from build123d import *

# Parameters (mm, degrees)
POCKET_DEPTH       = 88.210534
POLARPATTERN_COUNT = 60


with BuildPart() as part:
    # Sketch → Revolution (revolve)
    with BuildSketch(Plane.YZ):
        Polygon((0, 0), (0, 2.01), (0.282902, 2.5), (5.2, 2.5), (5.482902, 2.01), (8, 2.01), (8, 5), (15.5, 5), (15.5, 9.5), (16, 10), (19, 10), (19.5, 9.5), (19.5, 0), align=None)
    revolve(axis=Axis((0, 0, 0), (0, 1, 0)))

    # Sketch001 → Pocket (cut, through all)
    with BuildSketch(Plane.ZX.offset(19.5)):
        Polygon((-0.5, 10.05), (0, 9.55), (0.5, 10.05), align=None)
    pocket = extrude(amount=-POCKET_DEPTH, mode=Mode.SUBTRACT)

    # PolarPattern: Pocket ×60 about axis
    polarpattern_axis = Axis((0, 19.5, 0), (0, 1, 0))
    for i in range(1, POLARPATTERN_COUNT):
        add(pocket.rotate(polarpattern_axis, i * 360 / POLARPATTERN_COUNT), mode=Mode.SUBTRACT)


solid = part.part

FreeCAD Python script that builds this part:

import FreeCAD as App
import Part
import Sketcher

V = App.Vector

doc = App.newDocument("Part")
params = doc.addObject("Spreadsheet::Sheet", "Params")
for row, (alias, value) in enumerate([
    ("sketch1_width", "3 mm"),
    ("sketch1_width2", "19.5 mm"),
    ("sketch1_width3", "7.5 mm"),
    ("sketch1_height", "9.5 mm"),
    ("sketch1_height2", "4.5 mm"),
    ("revolution_angle", "360 deg"),
    ("sketch2_height", "1 mm"),
], start=1):
    params.set(f"A{row}", alias)
    params.set(f"B{row}", "=" + value)
    params.setAlias(f"B{row}", alias)

body = doc.addObject("PartDesign::Body", "Body")

sketch1 = body.newObject("Sketcher::SketchObject", "Sketch")
sketch1.AttachmentSupport = (doc.getObject("YZ_Plane"), [""])
sketch1.MapMode = "FlatFace"
sketch1.addGeometry([
    Part.LineSegment(V(0, 2.01, 0), V(0, 0, 0)),
    Part.LineSegment(V(0, 0, 0), V(19.5, 0, 0)),
    Part.LineSegment(V(19.5, 0, 0), V(19.5, 9.5, 0)),
    Part.LineSegment(V(19.5, 9.5, 0), V(19, 10, 0)),
    Part.LineSegment(V(19, 10, 0), V(16, 10, 0)),
    Part.LineSegment(V(16, 10, 0), V(15.5, 9.5, 0)),
    Part.LineSegment(V(15.5, 9.5, 0), V(15.5, 5, 0)),
    Part.LineSegment(V(15.5, 5, 0), V(8, 5, 0)),
    Part.LineSegment(V(8, 5, 0), V(8, 2.01, 0)),
    Part.LineSegment(V(8, 2.01, 0), V(5.482902, 2.01, 0)),
    Part.LineSegment(V(5.482902, 2.01, 0), V(5.2, 2.5, 0)),
    Part.LineSegment(V(5.2, 2.5, 0), V(0.282902, 2.5, 0)),
    Part.LineSegment(V(0.282902, 2.5, 0), V(0, 2.01, 0)),
], False)
sketch1.addConstraint([
    Sketcher.Constraint("Coincident", 0, 2, 1, 1),
    Sketcher.Constraint("Coincident", 1, 2, 2, 1),
    Sketcher.Constraint("Coincident", 2, 2, 3, 1),
    Sketcher.Constraint("Coincident", 3, 2, 4, 1),
    Sketcher.Constraint("Coincident", 4, 2, 5, 1),
    Sketcher.Constraint("Coincident", 5, 2, 6, 1),
    Sketcher.Constraint("Coincident", 6, 2, 7, 1),
    Sketcher.Constraint("Coincident", 7, 2, 8, 1),
    Sketcher.Constraint("Coincident", 8, 2, 9, 1),
    Sketcher.Constraint("Coincident", 9, 2, 10, 1),
    Sketcher.Constraint("Coincident", 10, 2, 11, 1),
    Sketcher.Constraint("Coincident", 11, 2, 12, 1),
    Sketcher.Constraint("Coincident", 12, 2, 0, 1),
    Sketcher.Constraint("Vertical", 0),
    Sketcher.Constraint("Horizontal", 1),
    Sketcher.Constraint("Vertical", 2),
    Sketcher.Constraint("Horizontal", 4),
    Sketcher.Constraint("Vertical", 6),
    Sketcher.Constraint("Horizontal", 7),
    Sketcher.Constraint("Vertical", 8),
    Sketcher.Constraint("Horizontal", 9),
    Sketcher.Constraint("Horizontal", 11),
    Sketcher.Constraint("Coincident", 0, 2, -1, 1),
    Sketcher.Constraint("Perpendicular", 3, 5),
    Sketcher.Constraint("Horizontal", 2, 2, 5, 2),
    Sketcher.Constraint("Horizontal", 9, 2, 12, 2),
    Sketcher.Constraint("Equal", 3, 5),
    Sketcher.Constraint("Equal", 10, 12),
    Sketcher.Constraint("DistanceX", 4, 2, 4, 1, 3.0),
    Sketcher.Constraint("DistanceX", 1, 1, 1, 2, 19.5),
    Sketcher.Constraint("DistanceX", 7, 2, 7, 1, 7.5),
    Sketcher.Constraint("DistanceY", 2, 1, 2, 2, 9.5),
    Sketcher.Constraint("DistanceY", 6, 2, 6, 1, 4.5),
    Sketcher.Constraint("DistanceX", -1, 1, 3, 2, 19.0),
    Sketcher.Constraint("DistanceY", 0, 2, 0, 1, 2.01),
    Sketcher.Constraint("DistanceX", -1, 1, 10, 2, 5.2),
    Sketcher.Constraint("DistanceY", -1, 1, 10, 2, 2.5),
    Sketcher.Constraint("DistanceX", 11, 2, 11, 1, 4.917098),
])
sketch1.setExpression("Constraints[28]", "Params.sketch1_width")
sketch1.setExpression("Constraints[29]", "Params.sketch1_width2")
sketch1.setExpression("Constraints[30]", "Params.sketch1_width3")
sketch1.setExpression("Constraints[31]", "Params.sketch1_height")
sketch1.setExpression("Constraints[32]", "Params.sketch1_height2")
revolution = body.newObject("PartDesign::Revolution", "Revolution")
revolution.Profile = sketch1
revolution.ReferenceAxis = (sketch1, ["H_Axis"])
revolution.setExpression("Angle", "Params.revolution_angle")

sketch2 = body.newObject("Sketcher::SketchObject", "Sketch001")
sketch2.AttachmentSupport = (doc.getObject("XZ_Plane"), [""])
sketch2.MapMode = "FlatFace"
sketch2.AttachmentOffset = App.Placement(V(0, 0, -19.5), App.Rotation())
sketch2.addGeometry([
    Part.LineSegment(V(10.05, -0.5, 0), V(9.55, 0, 0)),
    Part.LineSegment(V(9.55, 0, 0), V(10.05, 0.5, 0)),
    Part.LineSegment(V(10.05, 0.5, 0), V(10.05, -0.5, 0)),
], False)
sketch2.addConstraint([
    Sketcher.Constraint("Coincident", 0, 2, 1, 1),
    Sketcher.Constraint("Coincident", 1, 2, 2, 1),
    Sketcher.Constraint("Coincident", 2, 2, 0, 1),
    Sketcher.Constraint("Vertical", 2),
    Sketcher.Constraint("PointOnObject", 0, 2, -1),
    Sketcher.Constraint("Perpendicular", 0, 1),
    Sketcher.Constraint("Equal", 0, 1),
    Sketcher.Constraint("DistanceY", 2, 2, 2, 1, 1.0),
    Sketcher.Constraint("DistanceX", -1, 1, 0, 2, 9.55),
])
sketch2.setExpression("Constraints[7]", "Params.sketch2_height")
pocket1 = body.newObject("PartDesign::Pocket", "Pocket")
pocket1.Profile = sketch2
pocket1.Type = "ThroughAll"
pocket1.Reversed = True
doc.recompute()

polarpattern = body.newObject("PartDesign::PolarPattern", "PolarPattern")
polarpattern.Originals = [pocket1]
polarpattern.Axis = (doc.getObject("Y_Axis"), [""])
polarpattern.Angle = 360
polarpattern.Occurrences = 60
body.Tip = polarpattern

doc.recompute()
